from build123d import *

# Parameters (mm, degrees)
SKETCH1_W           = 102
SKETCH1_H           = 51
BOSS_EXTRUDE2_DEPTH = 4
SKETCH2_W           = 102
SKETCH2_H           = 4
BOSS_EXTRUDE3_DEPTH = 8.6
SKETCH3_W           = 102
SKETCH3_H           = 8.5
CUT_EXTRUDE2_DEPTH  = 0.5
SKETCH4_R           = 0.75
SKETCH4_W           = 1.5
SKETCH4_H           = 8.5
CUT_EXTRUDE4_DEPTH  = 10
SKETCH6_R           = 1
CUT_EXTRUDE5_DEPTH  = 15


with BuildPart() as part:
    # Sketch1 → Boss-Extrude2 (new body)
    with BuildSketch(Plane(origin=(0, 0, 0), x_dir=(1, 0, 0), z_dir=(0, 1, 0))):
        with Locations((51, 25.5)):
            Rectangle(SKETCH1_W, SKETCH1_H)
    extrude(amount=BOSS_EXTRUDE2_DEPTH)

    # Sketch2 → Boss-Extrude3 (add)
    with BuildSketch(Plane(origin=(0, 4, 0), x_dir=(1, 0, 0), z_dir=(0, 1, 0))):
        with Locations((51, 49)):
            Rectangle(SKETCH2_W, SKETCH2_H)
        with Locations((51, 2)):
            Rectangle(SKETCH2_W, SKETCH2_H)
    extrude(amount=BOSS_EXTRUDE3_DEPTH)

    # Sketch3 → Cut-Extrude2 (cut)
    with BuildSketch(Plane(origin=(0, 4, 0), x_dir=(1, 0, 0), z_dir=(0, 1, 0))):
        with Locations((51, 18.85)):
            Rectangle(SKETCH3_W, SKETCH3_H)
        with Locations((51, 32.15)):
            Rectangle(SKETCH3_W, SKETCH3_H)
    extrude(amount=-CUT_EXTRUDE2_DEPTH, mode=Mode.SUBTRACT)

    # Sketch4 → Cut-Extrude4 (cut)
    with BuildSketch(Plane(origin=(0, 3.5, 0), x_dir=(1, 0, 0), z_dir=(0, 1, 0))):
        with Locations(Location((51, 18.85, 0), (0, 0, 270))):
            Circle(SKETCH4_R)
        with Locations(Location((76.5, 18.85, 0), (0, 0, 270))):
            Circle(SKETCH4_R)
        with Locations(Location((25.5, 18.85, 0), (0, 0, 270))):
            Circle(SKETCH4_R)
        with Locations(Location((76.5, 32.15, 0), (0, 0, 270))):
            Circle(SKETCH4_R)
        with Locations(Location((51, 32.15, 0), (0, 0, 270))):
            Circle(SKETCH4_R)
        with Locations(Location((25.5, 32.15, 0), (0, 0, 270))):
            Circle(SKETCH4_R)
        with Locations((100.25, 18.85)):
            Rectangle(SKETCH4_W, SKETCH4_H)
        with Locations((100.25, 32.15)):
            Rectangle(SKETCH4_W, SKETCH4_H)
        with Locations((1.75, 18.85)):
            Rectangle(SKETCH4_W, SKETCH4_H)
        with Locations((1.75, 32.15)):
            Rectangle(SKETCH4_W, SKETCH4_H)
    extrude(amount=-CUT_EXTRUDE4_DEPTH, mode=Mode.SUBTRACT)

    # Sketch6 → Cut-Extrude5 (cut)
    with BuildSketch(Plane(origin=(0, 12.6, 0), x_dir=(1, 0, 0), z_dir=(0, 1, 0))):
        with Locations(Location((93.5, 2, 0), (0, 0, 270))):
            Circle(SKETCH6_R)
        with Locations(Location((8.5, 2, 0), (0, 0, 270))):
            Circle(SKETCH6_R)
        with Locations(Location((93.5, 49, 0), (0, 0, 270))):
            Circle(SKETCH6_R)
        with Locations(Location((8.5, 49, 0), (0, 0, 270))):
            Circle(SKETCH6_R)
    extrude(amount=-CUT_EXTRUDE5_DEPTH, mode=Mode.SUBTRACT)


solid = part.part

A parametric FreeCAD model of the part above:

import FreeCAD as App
import Part
import Sketcher
Q = App.Units.Quantity

doc = App.newDocument("Part")
body = doc.addObject("PartDesign::Body", "Body")

sketch1 = doc.addObject("Sketcher::SketchObject", "Sketch")
body.addObject(sketch1)
sketch1.AttachmentSupport = (doc.XZ_Plane, [""])
sketch1.MapMode = "FlatFace"
sketch1.addGeometry([
    Part.LineSegment(App.Vector(0, -51, 0), App.Vector(0, 0, 0)),
    Part.LineSegment(App.Vector(0, 0, 0), App.Vector(102, 0, 0)),
    Part.LineSegment(App.Vector(102, 0, 0), App.Vector(102, -51, 0)),
    Part.LineSegment(App.Vector(102, -51, 0), App.Vector(0, -51, 0)),
], False)
sketch1.addConstraint([
    Sketcher.Constraint("Coincident", 0, 2, 1, 1),
    Sketcher.Constraint("Coincident", 1, 2, 2, 1),
    Sketcher.Constraint("Coincident", 2, 2, 3, 1),
    Sketcher.Constraint("Coincident", 3, 2, 0, 1),
    Sketcher.Constraint("Vertical", 0),
    Sketcher.Constraint("Horizontal", 1),
    Sketcher.Constraint("Vertical", 2),
    Sketcher.Constraint("Horizontal", 3),
    Sketcher.Constraint("Coincident", 0, 2, -1, 1),
    Sketcher.Constraint("DistanceX", 1, 1, 1, 2, Q("102 mm")),
    Sketcher.Constraint("DistanceY", 0, 1, 0, 2, Q("51 mm")),
])
pad1 = doc.addObject("PartDesign::Pad", "Pad")
body.addObject(pad1)
pad1.Profile = sketch1
pad1.Length = 4
pad1.Reversed = True

sketch2 = doc.addObject("Sketcher::SketchObject", "Sketch001")
body.addObject(sketch2)
sketch2.AttachmentSupport = (doc.XZ_Plane, [""])
sketch2.MapMode = "FlatFace"
sketch2.AttachmentOffset = App.Placement(App.Vector(0, 0, -4), App.Rotation())
sketch2.addGeometry([
    Part.LineSegment(App.Vector(0, -51, 0), App.Vector(0, -47, 0)),
    Part.LineSegment(App.Vector(0, -47, 0), App.Vector(102, -47, 0)),
    Part.LineSegment(App.Vector(102, -47, 0), App.Vector(102, -51, 0)),
    Part.LineSegment(App.Vector(102, -51, 0), App.Vector(0, -51, 0)),
    Part.LineSegment(App.Vector(0, -4, 0), App.Vector(0, 0, 0)),
    Part.LineSegment(App.Vector(0, 0, 0), App.Vector(102, 0, 0)),
    Part.LineSegment(App.Vector(102, 0, 0), App.Vector(102, -4, 0)),
    Part.LineSegment(App.Vector(102, -4, 0), App.Vector(0, -4, 0)),
], False)
sketch2.addConstraint([
    Sketcher.Constraint("Coincident", 0, 2, 1, 1),
    Sketcher.Constraint("Coincident", 1, 2, 2, 1),
    Sketcher.Constraint("Coincident", 2, 2, 3, 1),
    Sketcher.Constraint("Coincident", 3, 2, 0, 1),
    Sketcher.Constraint("Coincident", 4, 2, 5, 1),
    Sketcher.Constraint("Coincident", 5, 2, 6, 1),
    Sketcher.Constraint("Coincident", 6, 2, 7, 1),
    Sketcher.Constraint("Coincident", 7, 2, 4, 1),
    Sketcher.Constraint("Vertical", 0),
    Sketcher.Constraint("Horizontal", 1),
    Sketcher.Constraint("Vertical", 2),
    Sketcher.Constraint("Horizontal", 3),
    Sketcher.Constraint("Vertical", 4),
    Sketcher.Constraint("Horizontal", 5),
    Sketcher.Constraint("Vertical", 6),
    Sketcher.Constraint("Horizontal", 7),
    Sketcher.Constraint("Coincident", 4, 2, -1, 1),
    Sketcher.Constraint("PointOnObject", 0, 2, -2),
    Sketcher.Constraint("Vertical", 2, 2, 5, 2),
    Sketcher.Constraint("Equal", 2, 4),
    Sketcher.Constraint("DistanceX", 1, 1, 1, 2, Q("102 mm")),
    Sketcher.Constraint("DistanceY", 0, 1, 0, 2, Q("4 mm")),
    Sketcher.Constraint("DistanceY", 0, 2, -1, 1, Q("47 mm")),
])
pad2 = doc.addObject("PartDesign::Pad", "Pad001")
body.addObject(pad2)
pad2.Profile = sketch2
pad2.Length = 8.6
pad2.Reversed = True

sketch3 = doc.addObject("Sketcher::SketchObject", "Sketch002")
body.addObject(sketch3)
sketch3.AttachmentSupport = (doc.XZ_Plane, [""])
sketch3.MapMode = "FlatFace"
sketch3.AttachmentOffset = App.Placement(App.Vector(0, 0, -4), App.Rotation())
sketch3.addGeometry([
    Part.LineSegment(App.Vector(0, -23, 0), App.Vector(0, -15, 0)),
    Part.LineSegment(App.Vector(0, -15, 0), App.Vector(102, -15, 0)),
    Part.LineSegment(App.Vector(102, -15, 0), App.Vector(102, -23, 0)),
    Part.LineSegment(App.Vector(102, -23, 0), App.Vector(0, -23, 0)),
    Part.LineSegment(App.Vector(0, -36, 0), App.Vector(0, -28, 0)),
    Part.LineSegment(App.Vector(0, -28, 0), App.Vector(102, -28, 0)),
    Part.LineSegment(App.Vector(102, -28, 0), App.Vector(102, -36, 0)),
    Part.LineSegment(App.Vector(102, -36, 0), App.Vector(0, -36, 0)),
], False)
sketch3.addConstraint([
    Sketcher.Constraint("Coincident", 0, 2, 1, 1),
    Sketcher.Constraint("Coincident", 1, 2, 2, 1),
    Sketcher.Constraint("Coincident", 2, 2, 3, 1),
    Sketcher.Constraint("Coincident", 3, 2, 0, 1),
    Sketcher.Constraint("Coincident", 4, 2, 5, 1),
    Sketcher.Constraint("Coincident", 5, 2, 6, 1),
    Sketcher.Constraint("Coincident", 6, 2, 7, 1),
    Sketcher.Constraint("Coincident", 7, 2, 4, 1),
    Sketcher.Constraint("Vertical", 0),
    Sketcher.Constraint("Horizontal", 1),
    Sketcher.Constraint("Vertical", 2),
    Sketcher.Constraint("Horizontal", 3),
    Sketcher.Constraint("Vertical", 4),
    Sketcher.Constraint("Horizontal", 5),
    Sketcher.Constraint("Vertical", 6),
    Sketcher.Constraint("Horizontal", 7),
    Sketcher.Constraint("PointOnObject", 0, 2, -2),
    Sketcher.Constraint("PointOnObject", 4, 2, -2),
    Sketcher.Constraint("Vertical", 2, 2, 5, 2),
    Sketcher.Constraint("Equal", 2, 4),
    Sketcher.Constraint("DistanceX", 1, 1, 1, 2, Q("102 mm")),
    Sketcher.Constraint("DistanceY", 0, 1, 0, 2, Q("8.5 mm")),
    Sketcher.Constraint("DistanceY", 0, 2, -1, 1, Q("14.6 mm")),
    Sketcher.Constraint("DistanceY", 4, 2, -1, 1, Q("27.9 mm")),
])
pocket1 = doc.addObject("PartDesign::Pocket", "Pocket")
body.addObject(pocket1)
pocket1.Profile = sketch3
pocket1.Length = 0.5
pocket1.Reversed = True

sketch4 = doc.addObject("Sketcher::SketchObject", "Sketch003")
body.addObject(sketch4)
sketch4.AttachmentSupport = (doc.XZ_Plane, [""])
sketch4.MapMode = "FlatFace"
sketch4.AttachmentOffset = App.Placement(App.Vector(0, 0, -3.5), App.Rotation())
sketch4.addGeometry([
    Part.Circle(App.Vector(51, -18.9, 0), App.Vector(0, 0, 1), 0.8),
    Part.Circle(App.Vector(76.5, -18.9, 0), App.Vector(0, 0, 1), 0.8),
    Part.Circle(App.Vector(25.5, -18.9, 0), App.Vector(0, 0, 1), 0.8),
    Part.Circle(App.Vector(76.5, -32.1, 0), App.Vector(0, 0, 1), 0.8),
    Part.Circle(App.Vector(51, -32.1, 0), App.Vector(0, 0, 1), 0.8),
    Part.Circle(App.Vector(25.5, -32.1, 0), App.Vector(0, 0, 1), 0.8),
    Part.LineSegment(App.Vector(99.5, -23.1, 0), App.Vector(99.5, -14.6, 0)),
    Part.LineSegment(App.Vector(99.5, -14.6, 0), App.Vector(101, -14.6, 0)),
    Part.LineSegment(App.Vector(101, -14.6, 0), App.Vector(101, -23.1, 0)),
    Part.LineSegment(App.Vector(101, -23.1, 0), App.Vector(99.5, -23.1, 0)),
    Part.LineSegment(App.Vector(99.5, -36.4, 0), App.Vector(99.5, -27.9, 0)),
    Part.LineSegment(App.Vector(99.5, -27.9, 0), App.Vector(101, -27.9, 0)),
    Part.LineSegment(App.Vector(101, -27.9, 0), App.Vector(101, -36.4, 0)),
    Part.LineSegment(App.Vector(101, -36.4, 0), App.Vector(99.5, -36.4, 0)),
    Part.LineSegment(App.Vector(1, -23.1, 0), App.Vector(1, -14.6, 0)),
    Part.LineSegment(App.Vector(1, -14.6, 0), App.Vector(2.5, -14.6, 0)),
    Part.LineSegment(App.Vector(2.5, -14.6, 0), App.Vector(2.5, -23.1, 0)),
    Part.LineSegment(App.Vector(2.5, -23.1, 0), App.Vector(1, -23.1, 0)),
    Part.LineSegment(App.Vector(1, -36.4, 0), App.Vector(1, -27.9, 0)),
    Part.LineSegment(App.Vector(1, -27.9, 0), App.Vector(2.5, -27.9, 0)),
    Part.LineSegment(App.Vector(2.5, -27.9, 0), App.Vector(2.5, -36.4, 0)),
    Part.LineSegment(App.Vector(2.5, -36.4, 0), App.Vector(1, -36.4, 0)),
], False)
sketch4.addConstraint([
    Sketcher.Constraint("Coincident", 6, 2, 7, 1),
    Sketcher.Constraint("Coincident", 7, 2, 8, 1),
    Sketcher.Constraint("Coincident", 8, 2, 9, 1),
    Sketcher.Constraint("Coincident", 9, 2, 6, 1),
    Sketcher.Constraint("Coincident", 10, 2, 11, 1),
    Sketcher.Constraint("Coincident", 11, 2, 12, 1),
    Sketcher.Constraint("Coincident", 12, 2, 13, 1),
    Sketcher.Constraint("Coincident", 13, 2, 10, 1),
    Sketcher.Constraint("Coincident", 14, 2, 15, 1),
    Sketcher.Constraint("Coincident", 15, 2, 16, 1),
    Sketcher.Constraint("Coincident", 16, 2, 17, 1),
    Sketcher.Constraint("Coincident", 17, 2, 14, 1),
    Sketcher.Constraint("Coincident", 18, 2, 19, 1),
    Sketcher.Constraint("Coincident", 19, 2, 20, 1),
    Sketcher.Constraint("Coincident", 20, 2, 21, 1),
    Sketcher.Constraint("Coincident", 21, 2, 18, 1),
    Sketcher.Constraint("Vertical", 6),
    Sketcher.Constraint("Horizontal", 7),
    Sketcher.Constraint("Vertical", 8),
    Sketcher.Constraint("Horizontal", 9),
    Sketcher.Constraint("Vertical", 10),
    Sketcher.Constraint("Horizontal", 11),
    Sketcher.Constraint("Vertical", 12),
    Sketcher.Constraint("Horizontal", 13),
    Sketcher.Constraint("Vertical", 14),
    Sketcher.Constraint("Horizontal", 15),
    Sketcher.Constraint("Vertical", 16),
    Sketcher.Constraint("Horizontal", 17),
    Sketcher.Constraint("Vertical", 18),
    Sketcher.Constraint("Horizontal", 19),
    Sketcher.Constraint("Vertical", 20),
    Sketcher.Constraint("Horizontal", 21),
    Sketcher.Constraint("Equal", 0, 1),
    Sketcher.Constraint("Equal", 1, 2),
    Sketcher.Constraint("Equal", 2, 3),
    Sketcher.Constraint("Equal", 3, 4),
    Sketcher.Constraint("Equal", 4, 5),
    Sketcher.Constraint("Horizontal", 0, 3, 1, 3),
    Sketcher.Constraint("Horizontal", 1, 3, 2, 3),
    Sketcher.Constraint("Horizontal", 3, 3, 4, 3),
    Sketcher.Constraint("Horizontal", 4, 3, 5, 3),
    Sketcher.Constraint("Horizontal", 7, 2, 14, 2),
    Sketcher.Constraint("Horizontal", 9, 2, 16, 2),
    Sketcher.Constraint("Horizontal", 11, 2, 18, 2),
    Sketcher.Constraint("Horizontal", 13, 2, 20, 2),
    Sketcher.Constraint("Vertical", 1, 3, 3, 3),
    Sketcher.Constraint("Vertical", 0, 3, 4, 3),
    Sketcher.Constraint("Vertical", 2, 3, 5, 3),
    Sketcher.Constraint("Vertical", 9, 2, 10, 2),
    Sketcher.Constraint("Vertical", 8, 2, 11, 2),
    Sketcher.Constraint("Vertical", 17, 2, 18, 2),
    Sketcher.Constraint("Vertical", 16, 2, 19, 2),
    Sketcher.Constraint("Equal", 13, 15),
    Sketcher.Constraint("Equal", 8, 10),
    Sketcher.Constraint("Diameter", 0, Q("1.5 mm")),
    Sketcher.Constraint("DistanceX", 7, 1, 7, 2, Q("1.5 mm")),
    Sketcher.Constraint("DistanceY", 6, 1, 6, 2, Q("8.5 mm")),
    Sketcher.Constraint("DistanceX", -1, 1, 0, 3, Q("51 mm")),
    Sketcher.Constraint("DistanceX", -1, 1, 7, 2, Q("101 mm")),
    Sketcher.Constraint("DistanceX", -1, 1, 14, 2, Q("1 mm")),
    Sketcher.Constraint("DistanceX", 2, 3, 1, 3, Q("51 mm")),
    Sketcher.Constraint("DistanceX", 1, 3, 6, 2, Q("23 mm")),
    Sketcher.Constraint("DistanceY", 6, 2, -1, 1, Q("14.6 mm")),
    Sketcher.Constraint("DistanceY", 10, 2, -1, 1, Q("27.9 mm")),
    Sketcher.Constraint("DistanceY", 3, 3, 1, 3, Q("13.3 mm")),
    Sketcher.Constraint("DistanceY", 0, 3, -1, 1, Q("18.85 mm")),
])
pocket2 = doc.addObject("PartDesign::Pocket", "Pocket001")
body.addObject(pocket2)
pocket2.Profile = sketch4
pocket2.Length = 10
pocket2.Reversed = True

sketch5 = doc.addObject("Sketcher::SketchObject", "Sketch004")
body.addObject(sketch5)
sketch5.AttachmentSupport = (doc.XZ_Plane, [""])
sketch5.MapMode = "FlatFace"
sketch5.AttachmentOffset = App.Placement(App.Vector(0, 0, -12.6), App.Rotation())
sketch5.addGeometry([
    Part.Circle(App.Vector(93.5, -2, 0), App.Vector(0, 0, 1), 1),
    Part.Circle(App.Vector(8.5, -2, 0), App.Vector(0, 0, 1), 1),
    Part.Circle(App.Vector(93.5, -49, 0), App.Vector(0, 0, 1), 1),
    Part.Circle(App.Vector(8.5, -49, 0), App.Vector(0, 0, 1), 1),
], False)
sketch5.addConstraint([
    Sketcher.Constraint("Equal", 0, 1),
    Sketcher.Constraint("Equal", 1, 2),
    Sketcher.Constraint("Equal", 2, 3),
    Sketcher.Constraint("Horizontal", 0, 3, 1, 3),
    Sketcher.Constraint("Horizontal", 2, 3, 3, 3),
    Sketcher.Constraint("Vertical", 0, 3, 2, 3),
    Sketcher.Constraint("Vertical", 1, 3, 3, 3),
    Sketcher.Constraint("Diameter", 0, Q("2 mm")),
    Sketcher.Constraint("DistanceY", 0, 3, -1, 1, Q("2 mm")),
    Sketcher.Constraint("DistanceY", 2, 3, -1, 1, Q("49 mm")),
    Sketcher.Constraint("DistanceX", 1, 3, 0, 3, Q("85 mm")),
    Sketcher.Constraint("DistanceX", -1, 1, 0, 3, Q("93.5 mm")),
])
pocket3 = doc.addObject("PartDesign::Pocket", "Pocket002")
body.addObject(pocket3)
pocket3.Profile = sketch5
pocket3.Length = 15
pocket3.Reversed = True

doc.recompute()
